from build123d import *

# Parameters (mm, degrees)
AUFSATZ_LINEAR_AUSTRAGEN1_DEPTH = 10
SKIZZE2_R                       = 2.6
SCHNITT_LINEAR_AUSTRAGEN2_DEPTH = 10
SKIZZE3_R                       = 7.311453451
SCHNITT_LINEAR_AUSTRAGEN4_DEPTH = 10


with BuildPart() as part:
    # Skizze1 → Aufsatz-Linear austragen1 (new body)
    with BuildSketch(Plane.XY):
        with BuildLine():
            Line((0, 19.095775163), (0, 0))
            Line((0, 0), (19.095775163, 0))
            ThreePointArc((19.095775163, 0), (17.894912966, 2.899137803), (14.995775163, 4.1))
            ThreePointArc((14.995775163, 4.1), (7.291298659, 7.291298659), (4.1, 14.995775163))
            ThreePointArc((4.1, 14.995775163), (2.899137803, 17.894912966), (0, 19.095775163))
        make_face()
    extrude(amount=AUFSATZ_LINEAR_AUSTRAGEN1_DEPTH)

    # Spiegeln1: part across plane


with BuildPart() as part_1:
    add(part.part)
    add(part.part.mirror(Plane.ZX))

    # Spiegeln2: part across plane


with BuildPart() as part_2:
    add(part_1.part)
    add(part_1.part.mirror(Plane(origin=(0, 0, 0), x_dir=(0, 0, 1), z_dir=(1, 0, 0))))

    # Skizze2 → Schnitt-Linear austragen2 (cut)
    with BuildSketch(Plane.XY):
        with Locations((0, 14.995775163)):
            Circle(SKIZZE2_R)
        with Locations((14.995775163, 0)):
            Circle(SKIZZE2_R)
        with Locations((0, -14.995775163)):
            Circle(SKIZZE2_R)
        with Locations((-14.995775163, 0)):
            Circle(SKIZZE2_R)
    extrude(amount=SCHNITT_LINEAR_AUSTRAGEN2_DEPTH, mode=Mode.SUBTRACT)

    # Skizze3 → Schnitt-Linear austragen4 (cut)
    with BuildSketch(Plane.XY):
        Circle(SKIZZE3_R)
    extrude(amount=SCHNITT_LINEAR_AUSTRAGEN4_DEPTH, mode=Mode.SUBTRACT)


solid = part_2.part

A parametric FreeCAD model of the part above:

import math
import FreeCAD as App
import Part
import Sketcher
from FreeCAD import Vector
Q = App.Units.Quantity

doc = App.newDocument("Part")
body = doc.addObject("PartDesign::Body", "Body")

# Sketch on XY plane
sketch1 = body.newObject("Sketcher::SketchObject", "Sketch")
sketch1.AttachmentSupport = (doc.getObject("XY_Plane"), [""])
sketch1.MapMode = "FlatFace"
sketch1.addGeometry([
    Part.LineSegment(Vector(0, 19.095775, 0), Vector(0, 0, 0)),  # 0
    Part.LineSegment(Vector(0, 0, 0), Vector(19.095775, 0, 0)),  # 1
    Part.ArcOfCircle(Part.Circle(Vector(14.995775, 0, 0), Vector(0, 0, 1), 4.1), math.radians(0), math.radians(90)),  # 2
    Part.ArcOfCircle(Part.Circle(Vector(14.995775, 14.995775, 0), Vector(0, 0, 1), 10.895775), math.radians(180), math.radians(270)),  # 3
    Part.ArcOfCircle(Part.Circle(Vector(0, 14.995775, 0), Vector(0, 0, 1), 4.1), math.radians(0), math.radians(90)),  # 4
], False)
sketch1.addConstraint([
    Sketcher.Constraint("Coincident", 0, 2, 1, 1),
    Sketcher.Constraint("Coincident", 1, 2, 2, 1),
    Sketcher.Constraint("Tangent", 2, 2, 3, 2),
    Sketcher.Constraint("Tangent", 3, 1, 4, 1),
    Sketcher.Constraint("Coincident", 4, 2, 0, 1),
    Sketcher.Constraint("Vertical", 0),
    Sketcher.Constraint("Horizontal", 1),
    Sketcher.Constraint("Coincident", 0, 2, -1, 1),
    Sketcher.Constraint("Equal", 2, 4),
    Sketcher.Constraint("PointOnObject", 2, 3, -1),
    Sketcher.Constraint("PointOnObject", 4, 3, -2),
    Sketcher.Constraint("Horizontal", 3, 3, 4, 3),
    Sketcher.Constraint("Vertical", 2, 3, 3, 3),
    Sketcher.Constraint("Radius", 2, Q("4.1 mm")),
    Sketcher.Constraint("Radius", 3, Q("10.895775 mm")),
])
pad1 = body.newObject("PartDesign::Pad", "Pad")
pad1.Profile = sketch1
pad1.Length = 10
body2 = doc.addObject("PartDesign::Body", "Body001")
doc.recompute()

body2.BaseFeature = body
doc.recompute()

mirroring = doc.addObject("Part::Mirroring", "Mirroring")
mirroring.Source = body
mirroring.Base = Vector(0, 0, 0)
mirroring.Normal = Vector(0, 1, 0)
body3 = doc.addObject("PartDesign::Body", "Body002")
body3.BaseFeature = mirroring
boolean = body2.newObject("PartDesign::Boolean", "Boolean")
boolean.Type = "Fuse"
boolean.addObjects([body3])
doc.recompute()
body4 = doc.addObject("PartDesign::Body", "Body003")
doc.recompute()

body4.BaseFeature = body2
doc.recompute()

mirroring2 = doc.addObject("Part::Mirroring", "Mirroring001")
mirroring2.Source = body2
mirroring2.Base = Vector(0, 0, 0)
mirroring2.Normal = Vector(1, 0, 0)
body5 = doc.addObject("PartDesign::Body", "Body004")
body5.BaseFeature = mirroring2
boolean2 = body4.newObject("PartDesign::Boolean", "Boolean001")
boolean2.Type = "Fuse"
boolean2.addObjects([body5])
doc.recompute()

# Sketch on XY plane
sketch2 = body4.newObject("Sketcher::SketchObject", "Sketch001")
sketch2.AttachmentSupport = (doc.getObject("XY_Plane003"), [""])
sketch2.MapMode = "FlatFace"
sketch2.addGeometry([
    Part.Circle(Vector(0, 14.995775, 0), Vector(0, 0, 1), 2.6),
    Part.Circle(Vector(14.995775, 0, 0), Vector(0, 0, 1), 2.6),
    Part.Circle(Vector(0, -14.995775, 0), Vector(0, 0, 1), 2.6),
    Part.Circle(Vector(-14.995775, 0, 0), Vector(0, 0, 1), 2.6),
], False)
sketch2.addConstraint([
    Sketcher.Constraint("Equal", 0, 1),
    Sketcher.Constraint("Equal", 1, 2),
    Sketcher.Constraint("Equal", 2, 3),
    Sketcher.Constraint("Symmetric", 0, 3, 2, 3, -1, 1),
    Sketcher.Constraint("Symmetric", 1, 3, 3, 3, -1, 1),
    Sketcher.Constraint("PointOnObject", 0, 3, -2),
    Sketcher.Constraint("PointOnObject", 1, 3, -1),
    Sketcher.Constraint("Diameter", 0, Q("5.2 mm")),
    Sketcher.Constraint("DistanceY", 2, 3, 0, 3, Q("29.99155 mm")),
    Sketcher.Constraint("DistanceX", 3, 3, 1, 3, Q("29.99155 mm")),
])
pocket1 = body4.newObject("PartDesign::Pocket", "Pocket")
pocket1.Profile = sketch2
pocket1.Length = 10
pocket1.Reversed = True

# Sketch on XY plane
sketch3 = body4.newObject("Sketcher::SketchObject", "Sketch002")
sketch3.AttachmentSupport = (doc.getObject("XY_Plane003"), [""])
sketch3.MapMode = "FlatFace"
sketch3.addGeometry(Part.Circle(Vector(0, 0, 0), Vector(0, 0, 1), 7.311453), False)
sketch3.addConstraint([
    Sketcher.Constraint("Coincident", 0, 3, -1, 1),
    Sketcher.Constraint("Diameter", 0, Q("14.622907 mm")),
])
pocket2 = body4.newObject("PartDesign::Pocket", "Pocket001")
pocket2.Profile = sketch3
pocket2.Length = 10
pocket2.Reversed = True
mirroring.Visibility = False
mirroring2.Visibility = False

doc.recompute()
